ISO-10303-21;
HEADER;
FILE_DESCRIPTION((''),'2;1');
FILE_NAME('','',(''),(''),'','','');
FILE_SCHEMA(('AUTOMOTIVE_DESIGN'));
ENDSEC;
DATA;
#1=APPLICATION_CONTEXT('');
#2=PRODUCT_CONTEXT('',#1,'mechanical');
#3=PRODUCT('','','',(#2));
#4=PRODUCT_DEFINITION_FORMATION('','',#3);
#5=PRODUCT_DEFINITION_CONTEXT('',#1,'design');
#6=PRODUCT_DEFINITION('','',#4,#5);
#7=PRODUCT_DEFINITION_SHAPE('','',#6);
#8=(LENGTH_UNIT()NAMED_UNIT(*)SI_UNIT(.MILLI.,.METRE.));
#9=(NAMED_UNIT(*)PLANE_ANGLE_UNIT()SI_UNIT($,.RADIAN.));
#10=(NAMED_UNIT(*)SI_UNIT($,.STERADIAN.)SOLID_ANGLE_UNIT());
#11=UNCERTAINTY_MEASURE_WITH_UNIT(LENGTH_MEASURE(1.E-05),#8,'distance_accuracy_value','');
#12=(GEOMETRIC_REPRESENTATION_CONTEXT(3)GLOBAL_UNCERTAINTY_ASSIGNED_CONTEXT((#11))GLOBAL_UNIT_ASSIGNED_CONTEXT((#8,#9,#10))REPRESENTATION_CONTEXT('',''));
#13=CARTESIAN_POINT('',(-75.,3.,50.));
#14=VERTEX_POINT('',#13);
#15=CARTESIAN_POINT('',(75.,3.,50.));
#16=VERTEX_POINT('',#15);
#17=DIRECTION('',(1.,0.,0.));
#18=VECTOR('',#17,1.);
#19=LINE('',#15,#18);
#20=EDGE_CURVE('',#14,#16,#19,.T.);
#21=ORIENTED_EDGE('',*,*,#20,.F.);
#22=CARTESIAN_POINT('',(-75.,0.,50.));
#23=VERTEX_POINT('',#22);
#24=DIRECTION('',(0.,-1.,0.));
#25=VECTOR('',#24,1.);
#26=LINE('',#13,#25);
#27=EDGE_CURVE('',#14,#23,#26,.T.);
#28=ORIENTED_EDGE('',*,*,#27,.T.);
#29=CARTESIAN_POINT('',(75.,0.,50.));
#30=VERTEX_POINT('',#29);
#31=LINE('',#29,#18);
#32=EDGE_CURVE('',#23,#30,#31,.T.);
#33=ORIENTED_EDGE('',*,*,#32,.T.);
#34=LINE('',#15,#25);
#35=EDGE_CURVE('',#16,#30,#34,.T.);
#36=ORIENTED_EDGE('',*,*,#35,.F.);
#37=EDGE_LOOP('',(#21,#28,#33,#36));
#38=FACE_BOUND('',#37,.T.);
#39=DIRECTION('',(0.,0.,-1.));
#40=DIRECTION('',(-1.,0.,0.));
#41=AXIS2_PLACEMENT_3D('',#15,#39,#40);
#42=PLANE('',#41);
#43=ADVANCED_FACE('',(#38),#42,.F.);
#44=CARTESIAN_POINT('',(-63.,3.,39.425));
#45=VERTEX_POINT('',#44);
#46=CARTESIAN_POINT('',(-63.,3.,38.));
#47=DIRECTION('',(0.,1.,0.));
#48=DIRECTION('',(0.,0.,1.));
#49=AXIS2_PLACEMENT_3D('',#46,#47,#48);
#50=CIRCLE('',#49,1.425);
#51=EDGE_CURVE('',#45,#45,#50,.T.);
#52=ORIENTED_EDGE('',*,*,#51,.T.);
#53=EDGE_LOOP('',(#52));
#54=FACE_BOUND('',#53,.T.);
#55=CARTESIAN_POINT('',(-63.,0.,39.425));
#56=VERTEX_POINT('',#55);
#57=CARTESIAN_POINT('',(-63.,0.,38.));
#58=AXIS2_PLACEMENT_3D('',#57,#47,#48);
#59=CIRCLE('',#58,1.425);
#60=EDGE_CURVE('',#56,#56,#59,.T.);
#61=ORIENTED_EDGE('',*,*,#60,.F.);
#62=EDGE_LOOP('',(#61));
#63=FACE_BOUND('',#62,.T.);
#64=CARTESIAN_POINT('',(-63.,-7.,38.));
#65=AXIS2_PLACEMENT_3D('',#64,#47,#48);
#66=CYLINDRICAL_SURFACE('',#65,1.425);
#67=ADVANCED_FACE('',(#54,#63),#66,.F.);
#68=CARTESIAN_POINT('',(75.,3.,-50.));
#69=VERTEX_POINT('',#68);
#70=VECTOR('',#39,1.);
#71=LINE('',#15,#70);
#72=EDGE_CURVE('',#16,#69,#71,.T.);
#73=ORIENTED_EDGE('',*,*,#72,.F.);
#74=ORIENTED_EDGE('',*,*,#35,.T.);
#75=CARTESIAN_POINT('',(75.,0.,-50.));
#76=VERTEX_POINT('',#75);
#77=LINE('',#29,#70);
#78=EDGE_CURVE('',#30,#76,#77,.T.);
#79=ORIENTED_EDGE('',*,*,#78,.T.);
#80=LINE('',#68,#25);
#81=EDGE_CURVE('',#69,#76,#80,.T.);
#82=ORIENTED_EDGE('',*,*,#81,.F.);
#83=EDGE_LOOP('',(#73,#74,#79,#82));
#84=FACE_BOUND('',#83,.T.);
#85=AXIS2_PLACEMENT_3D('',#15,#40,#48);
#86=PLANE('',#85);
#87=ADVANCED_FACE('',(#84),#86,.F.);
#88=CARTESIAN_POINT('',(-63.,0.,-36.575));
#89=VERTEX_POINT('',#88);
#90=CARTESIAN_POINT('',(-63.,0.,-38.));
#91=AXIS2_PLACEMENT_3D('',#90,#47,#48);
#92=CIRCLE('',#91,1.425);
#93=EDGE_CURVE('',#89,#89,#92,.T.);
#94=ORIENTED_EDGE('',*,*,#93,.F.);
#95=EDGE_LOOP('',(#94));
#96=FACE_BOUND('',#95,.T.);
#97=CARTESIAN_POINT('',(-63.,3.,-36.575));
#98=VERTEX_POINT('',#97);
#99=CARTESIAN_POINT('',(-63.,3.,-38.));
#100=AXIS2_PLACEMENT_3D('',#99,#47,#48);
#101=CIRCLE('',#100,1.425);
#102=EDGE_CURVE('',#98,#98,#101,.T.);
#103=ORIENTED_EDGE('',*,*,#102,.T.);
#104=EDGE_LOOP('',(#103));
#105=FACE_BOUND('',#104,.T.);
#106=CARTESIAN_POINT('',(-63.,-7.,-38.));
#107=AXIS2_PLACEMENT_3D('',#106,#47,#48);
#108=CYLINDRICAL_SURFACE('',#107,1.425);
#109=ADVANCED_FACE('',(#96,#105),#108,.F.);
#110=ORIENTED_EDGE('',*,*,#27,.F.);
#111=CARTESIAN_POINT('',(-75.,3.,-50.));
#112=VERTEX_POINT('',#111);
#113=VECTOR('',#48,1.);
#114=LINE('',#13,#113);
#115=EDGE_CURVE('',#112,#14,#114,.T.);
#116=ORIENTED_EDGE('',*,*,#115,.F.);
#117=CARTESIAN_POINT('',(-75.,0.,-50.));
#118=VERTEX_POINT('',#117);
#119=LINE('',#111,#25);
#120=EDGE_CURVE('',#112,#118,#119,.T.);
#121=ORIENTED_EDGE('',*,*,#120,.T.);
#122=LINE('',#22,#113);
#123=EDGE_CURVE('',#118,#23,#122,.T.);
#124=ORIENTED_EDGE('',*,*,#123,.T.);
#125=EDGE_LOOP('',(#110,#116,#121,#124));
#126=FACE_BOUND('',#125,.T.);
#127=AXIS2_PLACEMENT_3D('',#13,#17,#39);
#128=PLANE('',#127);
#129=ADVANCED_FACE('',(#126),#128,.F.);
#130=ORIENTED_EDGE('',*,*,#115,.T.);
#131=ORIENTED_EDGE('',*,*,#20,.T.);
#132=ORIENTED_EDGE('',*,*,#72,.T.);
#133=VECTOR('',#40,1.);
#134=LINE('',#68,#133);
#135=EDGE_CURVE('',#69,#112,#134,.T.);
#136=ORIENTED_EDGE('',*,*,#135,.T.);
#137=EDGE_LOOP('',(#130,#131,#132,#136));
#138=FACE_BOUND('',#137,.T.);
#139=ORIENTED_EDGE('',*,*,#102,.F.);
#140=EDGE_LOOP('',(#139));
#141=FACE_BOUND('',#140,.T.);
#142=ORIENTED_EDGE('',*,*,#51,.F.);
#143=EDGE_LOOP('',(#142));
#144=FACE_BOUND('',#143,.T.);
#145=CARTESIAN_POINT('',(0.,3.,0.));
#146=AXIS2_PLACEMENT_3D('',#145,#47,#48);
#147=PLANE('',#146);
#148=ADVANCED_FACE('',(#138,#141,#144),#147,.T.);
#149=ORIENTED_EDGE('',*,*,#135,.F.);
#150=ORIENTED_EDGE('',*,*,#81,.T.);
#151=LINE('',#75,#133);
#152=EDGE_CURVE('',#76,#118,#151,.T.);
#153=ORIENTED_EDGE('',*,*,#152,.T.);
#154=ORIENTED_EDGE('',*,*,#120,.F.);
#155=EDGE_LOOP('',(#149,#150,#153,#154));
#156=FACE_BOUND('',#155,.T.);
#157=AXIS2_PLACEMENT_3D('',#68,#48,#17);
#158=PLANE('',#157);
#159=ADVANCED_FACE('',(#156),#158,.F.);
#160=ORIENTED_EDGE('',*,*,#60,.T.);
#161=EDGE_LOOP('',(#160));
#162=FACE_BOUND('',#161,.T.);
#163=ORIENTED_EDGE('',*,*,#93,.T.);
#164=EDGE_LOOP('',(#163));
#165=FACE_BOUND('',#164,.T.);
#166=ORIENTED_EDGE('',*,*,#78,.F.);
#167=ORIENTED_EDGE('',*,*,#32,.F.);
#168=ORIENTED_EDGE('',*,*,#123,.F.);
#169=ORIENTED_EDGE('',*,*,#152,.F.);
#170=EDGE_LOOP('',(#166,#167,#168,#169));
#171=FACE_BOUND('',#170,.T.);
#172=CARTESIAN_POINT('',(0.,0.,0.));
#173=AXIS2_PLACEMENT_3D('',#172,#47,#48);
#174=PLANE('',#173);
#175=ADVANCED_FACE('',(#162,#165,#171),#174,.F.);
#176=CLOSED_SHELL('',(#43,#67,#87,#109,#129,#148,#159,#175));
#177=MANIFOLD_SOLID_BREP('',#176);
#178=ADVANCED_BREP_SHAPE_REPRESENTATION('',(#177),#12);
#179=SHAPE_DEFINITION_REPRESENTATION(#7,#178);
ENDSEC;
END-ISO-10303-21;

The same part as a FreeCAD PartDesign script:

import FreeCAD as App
import Part
import Sketcher


def add_polygon(sketch, points):
    """Adds a closed chain of lines whose ends are joined by coincident constraints."""
    first, n = sketch.GeometryCount, len(points)
    for a, b in zip(points, points[1:] + points[:1]):
        sketch.addGeometry(Part.LineSegment(App.Vector(*a, 0), App.Vector(*b, 0)), False)
    for i in range(n):
        sketch.addConstraint(Sketcher.Constraint("Coincident", first + i, 2, first + (i + 1) % n, 1))

doc = App.newDocument("Part")
params = doc.addObject("Spreadsheet::Sheet", "Params")
for row, (alias, value) in enumerate([
    ("sketch1_width", "150 mm"),
    ("sketch1_height", "100 mm"),
    ("pad1_length", "3 mm"),
    ("sketch2_diameter", "2.85 mm"),
    ("pocket1_length", "10 mm"),
    ("linearpattern_pitch", "76 mm"),
], start=1):
    params.set(f"A{row}", alias)
    params.set(f"B{row}", "=" + value)
    params.setAlias(f"B{row}", alias)

body = doc.addObject("PartDesign::Body", "Body")

sketch1 = doc.addObject("Sketcher::SketchObject", "Sketch")
body.addObject(sketch1)
sketch1.AttachmentSupport = (doc.XZ_Plane, [""])
sketch1.MapMode = "FlatFace"
add_polygon(sketch1, [(-75, -50), (-75, 50), (75, 50), (75, -50)])
sketch1.addConstraint([
    Sketcher.Constraint("Vertical", 0),
    Sketcher.Constraint("Horizontal", 1),
    Sketcher.Constraint("Vertical", 2),
    Sketcher.Constraint("Horizontal", 3),
    Sketcher.Constraint("Symmetric", 0, 2, 2, 2, -1, 1),
    Sketcher.Constraint("DistanceX", 1, 1, 1, 2, 150.0),
    Sketcher.Constraint("DistanceY", 0, 1, 0, 2, 100.0),
])
sketch1.setExpression("Constraints[9]", "Params.sketch1_width")
sketch1.setExpression("Constraints[10]", "Params.sketch1_height")
pad1 = doc.addObject("PartDesign::Pad", "Pad")
body.addObject(pad1)
pad1.Profile = sketch1
pad1.setExpression("Length", "Params.pad1_length")
pad1.Reversed = True

sketch2 = doc.addObject("Sketcher::SketchObject", "Sketch001")
body.addObject(sketch2)
sketch2.AttachmentSupport = (doc.XZ_Plane, [""])
sketch2.MapMode = "FlatFace"
sketch2.AttachmentOffset = App.Placement(App.Vector(0, 0, -3), App.Rotation())
sketch2.addGeometry(Part.Circle(App.Vector(-63, -38, 0), App.Vector(0, 0, 1), 1.4), False)
sketch2.addConstraint([
    Sketcher.Constraint("Diameter", 0, 2.85),
    Sketcher.Constraint("DistanceX", 0, 3, -1, 1, 63.0),
    Sketcher.Constraint("DistanceY", 0, 3, -1, 1, 38.0),
])
sketch2.setExpression("Constraints[0]", "Params.sketch2_diameter")
pocket1 = doc.addObject("PartDesign::Pocket", "Pocket")
body.addObject(pocket1)
pocket1.Profile = sketch2
pocket1.setExpression("Length", "Params.pocket1_length")
pocket1.Reversed = True
doc.recompute()

linearpattern = doc.addObject("PartDesign::LinearPattern", "LinearPattern")
body.addObject(linearpattern)
linearpattern.Originals = [pocket1]
linearpattern.Direction = (doc.Z_Axis, [""])
linearpattern.Mode = "offset"
linearpattern.setExpression("Offset", "Params.linearpattern_pitch")
linearpattern.Occurrences = 2
body.Tip = linearpattern

doc.recompute()
